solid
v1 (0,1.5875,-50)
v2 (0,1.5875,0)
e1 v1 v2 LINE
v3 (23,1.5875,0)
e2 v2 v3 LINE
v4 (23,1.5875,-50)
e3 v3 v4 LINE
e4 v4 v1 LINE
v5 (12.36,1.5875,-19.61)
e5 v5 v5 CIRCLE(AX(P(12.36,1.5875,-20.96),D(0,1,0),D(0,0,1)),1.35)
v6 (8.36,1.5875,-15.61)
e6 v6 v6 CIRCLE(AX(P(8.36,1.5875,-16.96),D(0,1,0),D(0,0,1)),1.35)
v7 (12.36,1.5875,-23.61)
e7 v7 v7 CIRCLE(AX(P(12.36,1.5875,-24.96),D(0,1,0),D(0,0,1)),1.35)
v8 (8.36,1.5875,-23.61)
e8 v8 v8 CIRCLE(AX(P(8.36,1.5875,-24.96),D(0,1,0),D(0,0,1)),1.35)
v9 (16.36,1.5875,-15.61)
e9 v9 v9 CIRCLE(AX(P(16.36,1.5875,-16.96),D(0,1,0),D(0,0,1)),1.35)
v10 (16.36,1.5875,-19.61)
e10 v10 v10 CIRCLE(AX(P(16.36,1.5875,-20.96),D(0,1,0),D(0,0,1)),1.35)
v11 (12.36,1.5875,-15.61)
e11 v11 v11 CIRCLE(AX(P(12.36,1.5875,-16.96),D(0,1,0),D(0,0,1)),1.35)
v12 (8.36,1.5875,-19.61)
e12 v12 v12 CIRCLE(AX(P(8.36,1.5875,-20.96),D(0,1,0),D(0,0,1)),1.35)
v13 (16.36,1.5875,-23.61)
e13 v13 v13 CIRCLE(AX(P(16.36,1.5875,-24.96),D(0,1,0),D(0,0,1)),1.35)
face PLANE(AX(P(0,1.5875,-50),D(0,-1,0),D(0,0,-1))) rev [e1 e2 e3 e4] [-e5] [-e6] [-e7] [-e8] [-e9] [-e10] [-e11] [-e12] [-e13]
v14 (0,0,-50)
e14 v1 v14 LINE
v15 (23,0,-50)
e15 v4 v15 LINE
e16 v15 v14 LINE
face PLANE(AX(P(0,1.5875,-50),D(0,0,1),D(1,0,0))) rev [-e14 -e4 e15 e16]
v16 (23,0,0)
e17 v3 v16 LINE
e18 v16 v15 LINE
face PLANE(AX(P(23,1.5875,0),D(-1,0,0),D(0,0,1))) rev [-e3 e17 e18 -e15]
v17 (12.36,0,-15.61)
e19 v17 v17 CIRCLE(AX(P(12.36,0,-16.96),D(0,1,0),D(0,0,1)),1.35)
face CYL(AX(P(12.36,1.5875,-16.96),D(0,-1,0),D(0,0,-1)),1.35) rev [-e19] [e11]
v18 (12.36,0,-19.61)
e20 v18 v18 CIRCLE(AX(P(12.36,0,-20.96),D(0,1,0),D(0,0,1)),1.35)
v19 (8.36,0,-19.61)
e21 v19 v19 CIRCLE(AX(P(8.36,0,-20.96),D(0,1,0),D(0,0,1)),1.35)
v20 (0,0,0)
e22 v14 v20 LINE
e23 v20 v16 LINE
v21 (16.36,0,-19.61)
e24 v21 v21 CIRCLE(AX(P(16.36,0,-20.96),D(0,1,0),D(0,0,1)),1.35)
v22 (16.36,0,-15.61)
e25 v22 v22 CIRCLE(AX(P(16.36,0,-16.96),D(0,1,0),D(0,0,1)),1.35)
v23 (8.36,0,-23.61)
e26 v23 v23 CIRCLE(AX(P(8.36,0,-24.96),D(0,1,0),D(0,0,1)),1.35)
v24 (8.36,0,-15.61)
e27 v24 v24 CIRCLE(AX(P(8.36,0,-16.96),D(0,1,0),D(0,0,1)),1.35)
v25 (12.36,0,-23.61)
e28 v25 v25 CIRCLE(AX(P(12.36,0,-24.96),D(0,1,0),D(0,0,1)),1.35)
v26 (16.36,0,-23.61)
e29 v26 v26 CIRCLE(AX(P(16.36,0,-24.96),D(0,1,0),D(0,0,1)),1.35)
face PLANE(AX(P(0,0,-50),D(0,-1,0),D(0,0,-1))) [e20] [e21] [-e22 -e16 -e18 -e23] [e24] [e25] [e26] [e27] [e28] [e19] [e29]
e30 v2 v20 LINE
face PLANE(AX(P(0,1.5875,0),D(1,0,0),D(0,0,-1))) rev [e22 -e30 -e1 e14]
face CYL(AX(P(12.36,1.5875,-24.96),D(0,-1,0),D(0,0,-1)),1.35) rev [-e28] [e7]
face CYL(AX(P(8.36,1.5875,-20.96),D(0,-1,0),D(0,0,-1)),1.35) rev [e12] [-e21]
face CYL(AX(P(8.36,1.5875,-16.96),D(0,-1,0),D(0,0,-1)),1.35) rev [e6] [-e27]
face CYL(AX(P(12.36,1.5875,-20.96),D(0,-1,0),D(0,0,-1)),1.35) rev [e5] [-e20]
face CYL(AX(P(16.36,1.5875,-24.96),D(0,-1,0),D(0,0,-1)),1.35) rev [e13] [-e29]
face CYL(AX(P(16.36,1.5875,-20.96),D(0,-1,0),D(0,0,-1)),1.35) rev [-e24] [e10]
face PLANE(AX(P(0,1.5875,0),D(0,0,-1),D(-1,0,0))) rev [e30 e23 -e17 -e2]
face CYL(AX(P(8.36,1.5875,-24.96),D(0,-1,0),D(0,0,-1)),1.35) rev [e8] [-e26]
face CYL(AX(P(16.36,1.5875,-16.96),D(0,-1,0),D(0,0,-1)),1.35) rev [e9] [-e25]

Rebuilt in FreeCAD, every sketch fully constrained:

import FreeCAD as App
import Part
import Sketcher

doc = App.newDocument("Part")
params = doc.addObject("Spreadsheet::Sheet", "Params")
for row, (alias, value) in enumerate([
    ("sketch1_diameter", "2.7 mm"),
    ("sketch1_width", "23 mm"),
    ("sketch1_height", "50 mm"),
    ("pad1_length", "1.5875 mm"),
], start=1):
    params.set(f"A{row}", alias)
    params.set(f"B{row}", "=" + value)
    params.setAlias(f"B{row}", alias)

body = doc.addObject("PartDesign::Body", "Body")

# Sketch on XZ plane
sketch1 = body.newObject("Sketcher::SketchObject", "Sketch")
sketch1.AttachmentSupport = (doc.getObject("XZ_Plane"), [""])
sketch1.MapMode = "FlatFace"
sketch1.addGeometry(Part.LineSegment(App.Vector(0, -50, 0), App.Vector(0, 0, 0)), False)
sketch1.addGeometry(Part.LineSegment(App.Vector(0, 0, 0), App.Vector(23, 0, 0)), False)
sketch1.addGeometry(Part.LineSegment(App.Vector(23, 0, 0), App.Vector(23, -50, 0)), False)
sketch1.addGeometry(Part.LineSegment(App.Vector(23, -50, 0), App.Vector(0, -50, 0)), False)
sketch1.addGeometry(Part.Circle(App.Vector(8.4, -17, 0), App.Vector(0, 0, 1), 1.4), False)
sketch1.addGeometry(Part.Circle(App.Vector(12.4, -17, 0), App.Vector(0, 0, 1), 1.4), False)
sketch1.addGeometry(Part.Circle(App.Vector(16.4, -17, 0), App.Vector(0, 0, 1), 1.4), False)
sketch1.addGeometry(Part.Circle(App.Vector(8.4, -21, 0), App.Vector(0, 0, 1), 1.4), False)
sketch1.addGeometry(Part.Circle(App.Vector(8.4, -25, 0), App.Vector(0, 0, 1), 1.4), False)
sketch1.addGeometry(Part.Circle(App.Vector(12.4, -21, 0), App.Vector(0, 0, 1), 1.4), False)
sketch1.addGeometry(Part.Circle(App.Vector(16.4, -21, 0), App.Vector(0, 0, 1), 1.4), False)
sketch1.addGeometry(Part.Circle(App.Vector(12.4, -25, 0), App.Vector(0, 0, 1), 1.4), False)
sketch1.addGeometry(Part.Circle(App.Vector(16.4, -25, 0), App.Vector(0, 0, 1), 1.4), False)
sketch1.addConstraint(Sketcher.Constraint("Coincident", 0, 2, 1, 1))
sketch1.addConstraint(Sketcher.Constraint("Coincident", 1, 2, 2, 1))
sketch1.addConstraint(Sketcher.Constraint("Coincident", 2, 2, 3, 1))
sketch1.addConstraint(Sketcher.Constraint("Coincident", 3, 2, 0, 1))
sketch1.addConstraint(Sketcher.Constraint("Vertical", 0))
sketch1.addConstraint(Sketcher.Constraint("Horizontal", 1))
sketch1.addConstraint(Sketcher.Constraint("Vertical", 2))
sketch1.addConstraint(Sketcher.Constraint("Horizontal", 3))
sketch1.addConstraint(Sketcher.Constraint("Coincident", 0, 2, -1, 1))
sketch1.addConstraint(Sketcher.Constraint("Equal", 4, 5))
sketch1.addConstraint(Sketcher.Constraint("Equal", 5, 6))
sketch1.addConstraint(Sketcher.Constraint("Equal", 6, 7))
sketch1.addConstraint(Sketcher.Constraint("Equal", 7, 8))
sketch1.addConstraint(Sketcher.Constraint("Equal", 8, 9))
sketch1.addConstraint(Sketcher.Constraint("Equal", 9, 10))
sketch1.addConstraint(Sketcher.Constraint("Equal", 10, 11))
sketch1.addConstraint(Sketcher.Constraint("Equal", 11, 12))
sketch1.addConstraint(Sketcher.Constraint("Horizontal", 4, 3, 5, 3))
sketch1.addConstraint(Sketcher.Constraint("Horizontal", 5, 3, 6, 3))
sketch1.addConstraint(Sketcher.Constraint("Horizontal", 7, 3, 9, 3))
sketch1.addConstraint(Sketcher.Constraint("Horizontal", 9, 3, 10, 3))
sketch1.addConstraint(Sketcher.Constraint("Horizontal", 8, 3, 11, 3))
sketch1.addConstraint(Sketcher.Constraint("Horizontal", 11, 3, 12, 3))
sketch1.addConstraint(Sketcher.Constraint("Vertical", 4, 3, 7, 3))
sketch1.addConstraint(Sketcher.Constraint("Vertical", 7, 3, 8, 3))
sketch1.addConstraint(Sketcher.Constraint("Vertical", 5, 3, 9, 3))
sketch1.addConstraint(Sketcher.Constraint("Vertical", 6, 3, 10, 3))
sketch1.addConstraint(Sketcher.Constraint("Vertical", 9, 3, 11, 3))
sketch1.addConstraint(Sketcher.Constraint("Vertical", 10, 3, 12, 3))
sketch1.addConstraint(Sketcher.Constraint("Diameter", 4, 2.7))
sketch1.addConstraint(Sketcher.Constraint("DistanceX", 1, 1, 1, 2, 23.0))
sketch1.addConstraint(Sketcher.Constraint("DistanceY", 0, 1, 0, 2, 50.0))
sketch1.addConstraint(Sketcher.Constraint("DistanceX", 4, 3, 5, 3, 4.0))
sketch1.addConstraint(Sketcher.Constraint("DistanceX", 5, 3, 6, 3, 4.0))
sketch1.addConstraint(Sketcher.Constraint("DistanceY", 7, 3, 4, 3, 4.0))
sketch1.addConstraint(Sketcher.Constraint("DistanceY", 8, 3, 7, 3, 4.0))
sketch1.addConstraint(Sketcher.Constraint("DistanceX", -1, 1, 4, 3, 8.36))
sketch1.addConstraint(Sketcher.Constraint("DistanceY", 4, 3, -1, 1, 16.96))
sketch1.setExpression("Constraints[29]", "Params.sketch1_diameter")
sketch1.setExpression("Constraints[30]", "Params.sketch1_width")
sketch1.setExpression("Constraints[31]", "Params.sketch1_height")
pad1 = body.newObject("PartDesign::Pad", "Pad")
pad1.Profile = sketch1
pad1.setExpression("Length", "Params.pad1_length")
pad1.Reversed = True

doc.recompute()
